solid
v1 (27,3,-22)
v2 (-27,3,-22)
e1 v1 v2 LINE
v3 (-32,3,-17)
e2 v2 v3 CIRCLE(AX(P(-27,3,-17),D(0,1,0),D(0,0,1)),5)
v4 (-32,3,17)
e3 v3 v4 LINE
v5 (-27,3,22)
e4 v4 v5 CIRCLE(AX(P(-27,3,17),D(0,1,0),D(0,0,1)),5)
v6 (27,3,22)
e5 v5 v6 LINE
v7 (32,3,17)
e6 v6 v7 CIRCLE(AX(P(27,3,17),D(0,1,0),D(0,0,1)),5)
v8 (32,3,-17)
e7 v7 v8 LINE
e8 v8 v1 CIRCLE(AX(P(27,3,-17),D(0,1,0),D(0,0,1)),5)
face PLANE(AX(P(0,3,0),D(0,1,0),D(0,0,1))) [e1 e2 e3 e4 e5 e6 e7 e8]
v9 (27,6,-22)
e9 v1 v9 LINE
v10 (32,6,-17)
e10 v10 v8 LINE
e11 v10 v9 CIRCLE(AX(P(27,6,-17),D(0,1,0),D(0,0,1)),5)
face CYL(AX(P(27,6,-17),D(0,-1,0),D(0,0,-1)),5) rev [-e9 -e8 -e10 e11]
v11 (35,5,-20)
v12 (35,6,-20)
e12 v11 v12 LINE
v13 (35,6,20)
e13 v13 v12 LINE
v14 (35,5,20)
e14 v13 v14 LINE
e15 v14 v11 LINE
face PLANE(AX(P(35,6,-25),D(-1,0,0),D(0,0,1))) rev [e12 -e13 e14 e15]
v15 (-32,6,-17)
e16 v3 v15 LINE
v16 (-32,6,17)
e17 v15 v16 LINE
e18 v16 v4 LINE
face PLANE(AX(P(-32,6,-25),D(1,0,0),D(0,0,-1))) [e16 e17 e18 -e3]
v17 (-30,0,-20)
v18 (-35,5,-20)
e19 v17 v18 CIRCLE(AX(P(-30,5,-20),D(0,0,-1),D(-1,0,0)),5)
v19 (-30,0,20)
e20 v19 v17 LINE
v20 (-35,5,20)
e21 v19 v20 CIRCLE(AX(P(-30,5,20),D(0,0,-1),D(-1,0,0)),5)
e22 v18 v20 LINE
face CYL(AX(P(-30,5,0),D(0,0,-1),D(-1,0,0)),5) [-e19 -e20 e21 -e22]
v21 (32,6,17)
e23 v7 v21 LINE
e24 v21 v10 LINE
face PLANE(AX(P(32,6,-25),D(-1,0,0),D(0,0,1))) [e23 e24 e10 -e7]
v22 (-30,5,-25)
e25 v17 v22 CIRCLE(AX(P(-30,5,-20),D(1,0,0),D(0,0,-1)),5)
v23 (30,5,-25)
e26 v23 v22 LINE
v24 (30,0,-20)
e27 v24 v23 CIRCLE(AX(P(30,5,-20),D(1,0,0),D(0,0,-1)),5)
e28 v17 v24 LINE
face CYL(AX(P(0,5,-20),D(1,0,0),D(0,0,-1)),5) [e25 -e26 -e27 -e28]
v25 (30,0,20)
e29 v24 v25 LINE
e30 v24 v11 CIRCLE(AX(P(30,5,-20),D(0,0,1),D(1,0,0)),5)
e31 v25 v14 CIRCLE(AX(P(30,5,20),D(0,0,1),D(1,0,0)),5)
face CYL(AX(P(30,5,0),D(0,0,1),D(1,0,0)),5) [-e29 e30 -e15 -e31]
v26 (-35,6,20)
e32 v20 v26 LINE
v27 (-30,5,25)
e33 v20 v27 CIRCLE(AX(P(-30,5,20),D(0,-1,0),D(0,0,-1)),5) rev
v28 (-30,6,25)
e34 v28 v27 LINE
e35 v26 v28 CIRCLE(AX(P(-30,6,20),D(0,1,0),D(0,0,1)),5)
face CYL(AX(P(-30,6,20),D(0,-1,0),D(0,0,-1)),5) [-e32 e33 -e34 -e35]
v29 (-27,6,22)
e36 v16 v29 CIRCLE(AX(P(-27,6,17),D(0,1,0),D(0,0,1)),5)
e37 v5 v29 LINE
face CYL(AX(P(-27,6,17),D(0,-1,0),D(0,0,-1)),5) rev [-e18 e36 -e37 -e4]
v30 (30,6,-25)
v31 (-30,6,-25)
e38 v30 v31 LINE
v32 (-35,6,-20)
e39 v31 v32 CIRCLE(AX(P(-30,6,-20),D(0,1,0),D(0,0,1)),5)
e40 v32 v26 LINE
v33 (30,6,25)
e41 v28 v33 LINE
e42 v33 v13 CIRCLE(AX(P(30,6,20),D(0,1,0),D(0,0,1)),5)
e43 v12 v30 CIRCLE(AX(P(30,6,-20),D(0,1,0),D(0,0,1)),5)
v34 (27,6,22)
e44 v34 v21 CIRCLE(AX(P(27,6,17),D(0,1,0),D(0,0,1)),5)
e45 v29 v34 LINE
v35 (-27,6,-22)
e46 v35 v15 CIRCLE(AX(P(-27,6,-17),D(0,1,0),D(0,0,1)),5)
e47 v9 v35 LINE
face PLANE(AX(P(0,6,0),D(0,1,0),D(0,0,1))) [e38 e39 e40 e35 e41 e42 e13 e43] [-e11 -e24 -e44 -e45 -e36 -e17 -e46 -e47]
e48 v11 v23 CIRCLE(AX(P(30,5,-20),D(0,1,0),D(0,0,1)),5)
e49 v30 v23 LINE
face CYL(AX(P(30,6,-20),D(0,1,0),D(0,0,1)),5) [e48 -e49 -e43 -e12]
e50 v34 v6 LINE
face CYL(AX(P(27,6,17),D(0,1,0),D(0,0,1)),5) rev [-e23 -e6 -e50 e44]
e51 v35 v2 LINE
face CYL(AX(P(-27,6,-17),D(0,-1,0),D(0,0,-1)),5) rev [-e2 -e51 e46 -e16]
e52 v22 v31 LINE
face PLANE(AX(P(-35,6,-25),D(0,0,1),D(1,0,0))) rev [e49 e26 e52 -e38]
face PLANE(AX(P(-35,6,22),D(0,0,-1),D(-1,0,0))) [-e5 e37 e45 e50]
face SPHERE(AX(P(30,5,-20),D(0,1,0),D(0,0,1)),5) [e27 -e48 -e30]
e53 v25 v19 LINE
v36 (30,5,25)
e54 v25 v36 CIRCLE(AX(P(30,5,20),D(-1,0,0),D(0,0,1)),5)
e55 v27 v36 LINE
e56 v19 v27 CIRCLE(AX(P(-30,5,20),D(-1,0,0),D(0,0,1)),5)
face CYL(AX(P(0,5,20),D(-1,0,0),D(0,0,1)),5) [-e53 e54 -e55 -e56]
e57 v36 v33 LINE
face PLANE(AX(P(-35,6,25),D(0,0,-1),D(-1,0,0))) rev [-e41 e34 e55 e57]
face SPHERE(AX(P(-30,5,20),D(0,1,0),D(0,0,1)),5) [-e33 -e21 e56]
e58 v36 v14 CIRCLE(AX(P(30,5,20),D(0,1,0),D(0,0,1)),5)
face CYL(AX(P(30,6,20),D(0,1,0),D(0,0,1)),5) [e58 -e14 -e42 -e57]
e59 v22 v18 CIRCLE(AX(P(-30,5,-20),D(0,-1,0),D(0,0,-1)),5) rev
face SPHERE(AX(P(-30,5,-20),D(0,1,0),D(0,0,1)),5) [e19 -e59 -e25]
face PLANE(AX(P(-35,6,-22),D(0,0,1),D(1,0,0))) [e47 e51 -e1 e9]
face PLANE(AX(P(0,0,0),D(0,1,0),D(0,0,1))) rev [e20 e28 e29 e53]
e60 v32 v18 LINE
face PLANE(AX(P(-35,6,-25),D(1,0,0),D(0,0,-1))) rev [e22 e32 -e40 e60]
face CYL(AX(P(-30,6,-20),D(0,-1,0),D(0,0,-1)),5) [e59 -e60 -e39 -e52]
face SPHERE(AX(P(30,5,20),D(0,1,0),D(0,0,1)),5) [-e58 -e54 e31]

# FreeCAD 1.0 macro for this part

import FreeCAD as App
import Part
import Sketcher


def edges_at(feature, points):
    """Names of the edges that pass closest to the given points."""
    edges = feature.Shape.Edges
    near = lambda p: min(range(len(edges)), key=lambda i: edges[i].distToShape(Part.Vertex(*p))[0])
    return sorted({f"Edge{near(p) + 1}" for p in points})


def faces_at(feature, points):
    """Names of the faces that lie closest to the given points."""
    faces = feature.Shape.Faces
    near = lambda p: min(range(len(faces)), key=lambda i: faces[i].distToShape(Part.Vertex(*p))[0])
    return sorted({f"Face{near(p) + 1}" for p in points})

doc = App.newDocument("Part")
body = doc.addObject("PartDesign::Body", "Body")

sketch1 = body.newObject("Sketcher::SketchObject", "Sketch")
sketch1.AttachmentSupport = (doc.getObject("XZ_Plane"), [""])
sketch1.MapMode = "FlatFace"
sketch1.addGeometry(Part.LineSegment(App.Vector(-35, -25, 0), App.Vector(-35, 25, 0)), False)
sketch1.addGeometry(Part.LineSegment(App.Vector(-35, 25, 0), App.Vector(35, 25, 0)), False)
sketch1.addGeometry(Part.LineSegment(App.Vector(35, 25, 0), App.Vector(35, -25, 0)), False)
sketch1.addGeometry(Part.LineSegment(App.Vector(35, -25, 0), App.Vector(-35, -25, 0)), False)
sketch1.addConstraint(Sketcher.Constraint("Coincident", 0, 2, 1, 1))
sketch1.addConstraint(Sketcher.Constraint("Coincident", 1, 2, 2, 1))
sketch1.addConstraint(Sketcher.Constraint("Coincident", 2, 2, 3, 1))
sketch1.addConstraint(Sketcher.Constraint("Coincident", 3, 2, 0, 1))
sketch1.addConstraint(Sketcher.Constraint("Vertical", 0))
sketch1.addConstraint(Sketcher.Constraint("Horizontal", 1))
sketch1.addConstraint(Sketcher.Constraint("Vertical", 2))
sketch1.addConstraint(Sketcher.Constraint("Horizontal", 3))
sketch1.addConstraint(Sketcher.Constraint("Symmetric", 0, 2, 2, 2, -1, 1))
sketch1.addConstraint(Sketcher.Constraint("DistanceX", 1, 1, 1, 2, 70.0))
sketch1.addConstraint(Sketcher.Constraint("DistanceY", 0, 1, 0, 2, 50.0))
pad1 = body.newObject("PartDesign::Pad", "Pad")
pad1.Profile = sketch1
pad1.Length = 6
pad1.Reversed = True
doc.recompute()

thickness = body.newObject("PartDesign::Thickness", "Thickness")
thickness.Base = (pad1, faces_at(pad1, [(0, 6, 0)]))
thickness.Value = 3
thickness.Reversed = True
thickness.Join = "Intersection"
doc.recompute()

fillet = body.newObject("PartDesign::Fillet", "Fillet")
fillet.Base = (thickness, edges_at(thickness, [(35, 3, 25)]))
fillet.Radius = 5
doc.recompute()

fillet2 = body.newObject("PartDesign::Fillet", "Fillet001")
fillet2.Base = (fillet, edges_at(fillet, [(35, 3, -25)]))
fillet2.Radius = 5
doc.recompute()

fillet3 = body.newObject("PartDesign::Fillet", "Fillet002")
fillet3.Base = (fillet2, edges_at(fillet2, [(-35, 3, 25)]))
fillet3.Radius = 5
doc.recompute()

fillet4 = body.newObject("PartDesign::Fillet", "Fillet003")
fillet4.Base = (fillet3, edges_at(fillet3, [(-35, 3, -25)]))
fillet4.Radius = 5
doc.recompute()

fillet5 = body.newObject("PartDesign::Fillet", "Fillet004")
fillet5.Base = (fillet4, edges_at(fillet4, [
    (35, 0, 0),
    (0, 0, -25),
    (0, 0, 25),
    (-35, 0, 0),
]))
fillet5.Radius = 5
doc.recompute()

fillet6 = body.newObject("PartDesign::Fillet", "Fillet005")
fillet6.Base = (fillet5, edges_at(fillet5, [(32, 4.5, 22)]))
fillet6.Radius = 5
doc.recompute()

fillet7 = body.newObject("PartDesign::Fillet", "Fillet006")
fillet7.Base = (fillet6, edges_at(fillet6, [(-32, 4.5, 22)]))
fillet7.Radius = 5
doc.recompute()

fillet8 = body.newObject("PartDesign::Fillet", "Fillet007")
fillet8.Base = (fillet7, edges_at(fillet7, [(-32, 4.5, -22)]))
fillet8.Radius = 5
doc.recompute()

fillet9 = body.newObject("PartDesign::Fillet", "Fillet008")
fillet9.Base = (fillet8, edges_at(fillet8, [(32, 4.5, -22)]))
fillet9.Radius = 5

doc.recompute()
